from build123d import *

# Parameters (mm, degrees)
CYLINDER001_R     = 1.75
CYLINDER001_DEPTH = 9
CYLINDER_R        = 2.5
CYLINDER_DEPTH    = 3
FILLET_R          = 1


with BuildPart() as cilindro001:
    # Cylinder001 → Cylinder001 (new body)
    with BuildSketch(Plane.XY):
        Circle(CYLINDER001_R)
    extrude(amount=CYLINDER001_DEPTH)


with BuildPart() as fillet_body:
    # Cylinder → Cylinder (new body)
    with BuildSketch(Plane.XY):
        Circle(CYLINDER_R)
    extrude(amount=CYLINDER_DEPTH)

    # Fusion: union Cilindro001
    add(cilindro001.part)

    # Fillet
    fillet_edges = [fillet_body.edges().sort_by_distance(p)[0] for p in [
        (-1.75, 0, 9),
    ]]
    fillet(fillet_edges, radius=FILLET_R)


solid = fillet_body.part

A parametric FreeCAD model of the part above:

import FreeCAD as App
import Part
import Sketcher
Q = App.Units.Quantity


def edges_at(feature, points):
    """Names of the edges that pass closest to the given points."""
    edges = feature.Shape.Edges
    near = lambda p: min(range(len(edges)), key=lambda i: edges[i].distToShape(Part.Vertex(*p))[0])
    return sorted({f"Edge{near(p) + 1}" for p in points})

doc = App.newDocument("Part")
params = doc.addObject("Spreadsheet::Sheet", "Params")
for row, (alias, value) in enumerate([
    ("sketch1_diameter", "3.5 mm"),
    ("pad1_length", "9 mm"),
    ("sketch2_diameter", "5 mm"),
    ("pad2_length", "3 mm"),
    ("fillet_radius", "1 mm"),
], start=1):
    params.set(f"A{row}", alias)
    params.set(f"B{row}", "=" + value)
    params.setAlias(f"B{row}", alias)

body = doc.addObject("PartDesign::Body", "Body")

# Sketch on XY plane
sketch1 = body.newObject("Sketcher::SketchObject", "Sketch")
sketch1.AttachmentSupport = (doc.getObject("XY_Plane"), [""])
sketch1.MapMode = "FlatFace"
sketch1.addGeometry(Part.Circle(App.Vector(0, 0, 0), App.Vector(0, 0, 1), 1.8), False)
sketch1.addConstraint([
    Sketcher.Constraint("Coincident", 0, 3, -1, 1),
    Sketcher.Constraint("Diameter", 0, Q("3.5 mm")),
])
sketch1.setExpression("Constraints[1]", "Params.sketch1_diameter")
pad1 = body.newObject("PartDesign::Pad", "Pad")
pad1.Profile = sketch1
pad1.setExpression("Length", "Params.pad1_length")
body2 = doc.addObject("PartDesign::Body", "Body001")

# Sketch on XY plane
sketch2 = body2.newObject("Sketcher::SketchObject", "Sketch001")
sketch2.AttachmentSupport = (doc.getObject("XY_Plane001"), [""])
sketch2.MapMode = "FlatFace"
sketch2.addGeometry(Part.Circle(App.Vector(0, 0, 0), App.Vector(0, 0, 1), 2.5), False)
sketch2.addConstraint([
    Sketcher.Constraint("Coincident", 0, 3, -1, 1),
    Sketcher.Constraint("Diameter", 0, Q("5 mm")),
])
sketch2.setExpression("Constraints[1]", "Params.sketch2_diameter")
pad2 = body2.newObject("PartDesign::Pad", "Pad001")
pad2.Profile = sketch2
pad2.setExpression("Length", "Params.pad2_length")
doc.recompute()

boolean = body2.newObject("PartDesign::Boolean", "Boolean")
boolean.Type = "Fuse"
boolean.addObjects([body])
doc.recompute()

fillet = body2.newObject("PartDesign::Fillet", "Fillet")
fillet.Base = (boolean, edges_at(boolean, [(-1.75, 0, 9)]))
fillet.setExpression("Radius", "Params.fillet_radius")

doc.recompute()
